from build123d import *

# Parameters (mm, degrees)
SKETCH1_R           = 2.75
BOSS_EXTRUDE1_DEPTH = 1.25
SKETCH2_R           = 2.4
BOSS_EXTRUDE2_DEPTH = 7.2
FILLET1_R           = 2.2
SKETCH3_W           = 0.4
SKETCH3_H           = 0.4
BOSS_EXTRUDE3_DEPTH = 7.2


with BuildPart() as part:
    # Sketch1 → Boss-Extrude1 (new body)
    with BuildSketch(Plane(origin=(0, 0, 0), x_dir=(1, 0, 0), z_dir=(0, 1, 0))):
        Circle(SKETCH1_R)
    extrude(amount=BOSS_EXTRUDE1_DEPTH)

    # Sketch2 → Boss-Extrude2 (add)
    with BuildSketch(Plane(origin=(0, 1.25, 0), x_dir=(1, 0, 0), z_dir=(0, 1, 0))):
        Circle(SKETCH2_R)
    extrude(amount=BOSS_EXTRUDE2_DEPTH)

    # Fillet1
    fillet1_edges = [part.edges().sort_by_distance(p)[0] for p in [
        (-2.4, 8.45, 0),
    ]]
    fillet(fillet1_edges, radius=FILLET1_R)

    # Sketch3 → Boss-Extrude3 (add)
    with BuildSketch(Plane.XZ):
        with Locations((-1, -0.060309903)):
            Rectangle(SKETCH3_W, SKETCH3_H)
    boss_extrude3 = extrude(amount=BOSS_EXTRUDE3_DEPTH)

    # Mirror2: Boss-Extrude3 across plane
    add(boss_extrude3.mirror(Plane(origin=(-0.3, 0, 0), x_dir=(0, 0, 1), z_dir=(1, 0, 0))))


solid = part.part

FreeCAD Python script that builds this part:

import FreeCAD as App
import Part
import Sketcher
from FreeCAD import Vector


def edges_at(feature, points):
    """Names of the edges that pass closest to the given points."""
    edges = feature.Shape.Edges
    near = lambda p: min(range(len(edges)), key=lambda i: edges[i].distToShape(Part.Vertex(*p))[0])
    return sorted({f"Edge{near(p) + 1}" for p in points})


def add_polygon(sketch, points):
    """Adds a closed chain of lines whose ends are joined by coincident constraints."""
    first, n = sketch.GeometryCount, len(points)
    for a, b in zip(points, points[1:] + points[:1]):
        sketch.addGeometry(Part.LineSegment(App.Vector(*a, 0), App.Vector(*b, 0)), False)
    for i in range(n):
        sketch.addConstraint(Sketcher.Constraint("Coincident", first + i, 2, first + (i + 1) % n, 1))

doc = App.newDocument("Part")
body = doc.addObject("PartDesign::Body", "Body")

sketch1 = doc.addObject("Sketcher::SketchObject", "Sketch")
body.addObject(sketch1)
sketch1.AttachmentSupport = (doc.XZ_Plane, [""])
sketch1.MapMode = "FlatFace"
sketch1.addGeometry(Part.Circle(Vector(0, 0, 0), Vector(0, 0, 1), 2.8), False)
sketch1.addConstraint([
    Sketcher.Constraint("Coincident", 0, 3, -1, 1),
    Sketcher.Constraint("Diameter", 0, 5.5),
])
pad1 = doc.addObject("PartDesign::Pad", "Pad")
body.addObject(pad1)
pad1.Profile = sketch1
pad1.Length = 1.25
pad1.Reversed = True

sketch2 = doc.addObject("Sketcher::SketchObject", "Sketch001")
body.addObject(sketch2)
sketch2.AttachmentSupport = (doc.XZ_Plane, [""])
sketch2.MapMode = "FlatFace"
sketch2.AttachmentOffset = App.Placement(Vector(0, 0, -1.25), App.Rotation())
sketch2.addGeometry(Part.Circle(Vector(0, 0, 0), Vector(0, 0, 1), 2.4), False)
sketch2.addConstraint([
    Sketcher.Constraint("Coincident", 0, 3, -1, 1),
    Sketcher.Constraint("Diameter", 0, 4.8),
])
pad2 = doc.addObject("PartDesign::Pad", "Pad001")
body.addObject(pad2)
pad2.Profile = sketch2
pad2.Length = 7.2
pad2.Reversed = True
doc.recompute()

fillet = doc.addObject("PartDesign::Fillet", "Fillet")
body.addObject(fillet)
fillet.Base = (pad2, edges_at(pad2, [(-2.4, 8.45, 0)]))
fillet.Radius = 2.2

sketch3 = doc.addObject("Sketcher::SketchObject", "Sketch002")
body.addObject(sketch3)
sketch3.AttachmentSupport = (doc.XZ_Plane, [""])
sketch3.MapMode = "FlatFace"
add_polygon(sketch3, [(-1.2, 0.14), (-1.2, -0.26), (-0.8, -0.26), (-0.8, 0.14)])
sketch3.addConstraint([
    Sketcher.Constraint("Vertical", 0),
    Sketcher.Constraint("Horizontal", 1),
    Sketcher.Constraint("Vertical", 2),
    Sketcher.Constraint("Horizontal", 3),
    Sketcher.Constraint("Equal", 3, 0),
    Sketcher.Constraint("DistanceX", 1, 1, 1, 2, 0.4),
    Sketcher.Constraint("DistanceX", 0, 2, -1, 1, 1.2),
    Sketcher.Constraint("DistanceY", 0, 2, -1, 1, 0.26031),
])
pad3 = doc.addObject("PartDesign::Pad", "Pad002")
body.addObject(pad3)
pad3.Profile = sketch3
pad3.Length = 7.2
doc.recompute()

datumplane = doc.addObject("PartDesign::Plane", "DatumPlane")
body.addObject(datumplane)
datumplane.AttachmentSupport = (doc.YZ_Plane, [""])
datumplane.MapMode = "FlatFace"
datumplane.AttachmentOffset = App.Placement(Vector(0, 0, -0.3), App.Rotation())
mirrored = doc.addObject("PartDesign::Mirrored", "Mirrored")
body.addObject(mirrored)
mirrored.Originals = [pad3]
mirrored.MirrorPlane = (datumplane, [""])
body.Tip = mirrored

doc.recompute()
